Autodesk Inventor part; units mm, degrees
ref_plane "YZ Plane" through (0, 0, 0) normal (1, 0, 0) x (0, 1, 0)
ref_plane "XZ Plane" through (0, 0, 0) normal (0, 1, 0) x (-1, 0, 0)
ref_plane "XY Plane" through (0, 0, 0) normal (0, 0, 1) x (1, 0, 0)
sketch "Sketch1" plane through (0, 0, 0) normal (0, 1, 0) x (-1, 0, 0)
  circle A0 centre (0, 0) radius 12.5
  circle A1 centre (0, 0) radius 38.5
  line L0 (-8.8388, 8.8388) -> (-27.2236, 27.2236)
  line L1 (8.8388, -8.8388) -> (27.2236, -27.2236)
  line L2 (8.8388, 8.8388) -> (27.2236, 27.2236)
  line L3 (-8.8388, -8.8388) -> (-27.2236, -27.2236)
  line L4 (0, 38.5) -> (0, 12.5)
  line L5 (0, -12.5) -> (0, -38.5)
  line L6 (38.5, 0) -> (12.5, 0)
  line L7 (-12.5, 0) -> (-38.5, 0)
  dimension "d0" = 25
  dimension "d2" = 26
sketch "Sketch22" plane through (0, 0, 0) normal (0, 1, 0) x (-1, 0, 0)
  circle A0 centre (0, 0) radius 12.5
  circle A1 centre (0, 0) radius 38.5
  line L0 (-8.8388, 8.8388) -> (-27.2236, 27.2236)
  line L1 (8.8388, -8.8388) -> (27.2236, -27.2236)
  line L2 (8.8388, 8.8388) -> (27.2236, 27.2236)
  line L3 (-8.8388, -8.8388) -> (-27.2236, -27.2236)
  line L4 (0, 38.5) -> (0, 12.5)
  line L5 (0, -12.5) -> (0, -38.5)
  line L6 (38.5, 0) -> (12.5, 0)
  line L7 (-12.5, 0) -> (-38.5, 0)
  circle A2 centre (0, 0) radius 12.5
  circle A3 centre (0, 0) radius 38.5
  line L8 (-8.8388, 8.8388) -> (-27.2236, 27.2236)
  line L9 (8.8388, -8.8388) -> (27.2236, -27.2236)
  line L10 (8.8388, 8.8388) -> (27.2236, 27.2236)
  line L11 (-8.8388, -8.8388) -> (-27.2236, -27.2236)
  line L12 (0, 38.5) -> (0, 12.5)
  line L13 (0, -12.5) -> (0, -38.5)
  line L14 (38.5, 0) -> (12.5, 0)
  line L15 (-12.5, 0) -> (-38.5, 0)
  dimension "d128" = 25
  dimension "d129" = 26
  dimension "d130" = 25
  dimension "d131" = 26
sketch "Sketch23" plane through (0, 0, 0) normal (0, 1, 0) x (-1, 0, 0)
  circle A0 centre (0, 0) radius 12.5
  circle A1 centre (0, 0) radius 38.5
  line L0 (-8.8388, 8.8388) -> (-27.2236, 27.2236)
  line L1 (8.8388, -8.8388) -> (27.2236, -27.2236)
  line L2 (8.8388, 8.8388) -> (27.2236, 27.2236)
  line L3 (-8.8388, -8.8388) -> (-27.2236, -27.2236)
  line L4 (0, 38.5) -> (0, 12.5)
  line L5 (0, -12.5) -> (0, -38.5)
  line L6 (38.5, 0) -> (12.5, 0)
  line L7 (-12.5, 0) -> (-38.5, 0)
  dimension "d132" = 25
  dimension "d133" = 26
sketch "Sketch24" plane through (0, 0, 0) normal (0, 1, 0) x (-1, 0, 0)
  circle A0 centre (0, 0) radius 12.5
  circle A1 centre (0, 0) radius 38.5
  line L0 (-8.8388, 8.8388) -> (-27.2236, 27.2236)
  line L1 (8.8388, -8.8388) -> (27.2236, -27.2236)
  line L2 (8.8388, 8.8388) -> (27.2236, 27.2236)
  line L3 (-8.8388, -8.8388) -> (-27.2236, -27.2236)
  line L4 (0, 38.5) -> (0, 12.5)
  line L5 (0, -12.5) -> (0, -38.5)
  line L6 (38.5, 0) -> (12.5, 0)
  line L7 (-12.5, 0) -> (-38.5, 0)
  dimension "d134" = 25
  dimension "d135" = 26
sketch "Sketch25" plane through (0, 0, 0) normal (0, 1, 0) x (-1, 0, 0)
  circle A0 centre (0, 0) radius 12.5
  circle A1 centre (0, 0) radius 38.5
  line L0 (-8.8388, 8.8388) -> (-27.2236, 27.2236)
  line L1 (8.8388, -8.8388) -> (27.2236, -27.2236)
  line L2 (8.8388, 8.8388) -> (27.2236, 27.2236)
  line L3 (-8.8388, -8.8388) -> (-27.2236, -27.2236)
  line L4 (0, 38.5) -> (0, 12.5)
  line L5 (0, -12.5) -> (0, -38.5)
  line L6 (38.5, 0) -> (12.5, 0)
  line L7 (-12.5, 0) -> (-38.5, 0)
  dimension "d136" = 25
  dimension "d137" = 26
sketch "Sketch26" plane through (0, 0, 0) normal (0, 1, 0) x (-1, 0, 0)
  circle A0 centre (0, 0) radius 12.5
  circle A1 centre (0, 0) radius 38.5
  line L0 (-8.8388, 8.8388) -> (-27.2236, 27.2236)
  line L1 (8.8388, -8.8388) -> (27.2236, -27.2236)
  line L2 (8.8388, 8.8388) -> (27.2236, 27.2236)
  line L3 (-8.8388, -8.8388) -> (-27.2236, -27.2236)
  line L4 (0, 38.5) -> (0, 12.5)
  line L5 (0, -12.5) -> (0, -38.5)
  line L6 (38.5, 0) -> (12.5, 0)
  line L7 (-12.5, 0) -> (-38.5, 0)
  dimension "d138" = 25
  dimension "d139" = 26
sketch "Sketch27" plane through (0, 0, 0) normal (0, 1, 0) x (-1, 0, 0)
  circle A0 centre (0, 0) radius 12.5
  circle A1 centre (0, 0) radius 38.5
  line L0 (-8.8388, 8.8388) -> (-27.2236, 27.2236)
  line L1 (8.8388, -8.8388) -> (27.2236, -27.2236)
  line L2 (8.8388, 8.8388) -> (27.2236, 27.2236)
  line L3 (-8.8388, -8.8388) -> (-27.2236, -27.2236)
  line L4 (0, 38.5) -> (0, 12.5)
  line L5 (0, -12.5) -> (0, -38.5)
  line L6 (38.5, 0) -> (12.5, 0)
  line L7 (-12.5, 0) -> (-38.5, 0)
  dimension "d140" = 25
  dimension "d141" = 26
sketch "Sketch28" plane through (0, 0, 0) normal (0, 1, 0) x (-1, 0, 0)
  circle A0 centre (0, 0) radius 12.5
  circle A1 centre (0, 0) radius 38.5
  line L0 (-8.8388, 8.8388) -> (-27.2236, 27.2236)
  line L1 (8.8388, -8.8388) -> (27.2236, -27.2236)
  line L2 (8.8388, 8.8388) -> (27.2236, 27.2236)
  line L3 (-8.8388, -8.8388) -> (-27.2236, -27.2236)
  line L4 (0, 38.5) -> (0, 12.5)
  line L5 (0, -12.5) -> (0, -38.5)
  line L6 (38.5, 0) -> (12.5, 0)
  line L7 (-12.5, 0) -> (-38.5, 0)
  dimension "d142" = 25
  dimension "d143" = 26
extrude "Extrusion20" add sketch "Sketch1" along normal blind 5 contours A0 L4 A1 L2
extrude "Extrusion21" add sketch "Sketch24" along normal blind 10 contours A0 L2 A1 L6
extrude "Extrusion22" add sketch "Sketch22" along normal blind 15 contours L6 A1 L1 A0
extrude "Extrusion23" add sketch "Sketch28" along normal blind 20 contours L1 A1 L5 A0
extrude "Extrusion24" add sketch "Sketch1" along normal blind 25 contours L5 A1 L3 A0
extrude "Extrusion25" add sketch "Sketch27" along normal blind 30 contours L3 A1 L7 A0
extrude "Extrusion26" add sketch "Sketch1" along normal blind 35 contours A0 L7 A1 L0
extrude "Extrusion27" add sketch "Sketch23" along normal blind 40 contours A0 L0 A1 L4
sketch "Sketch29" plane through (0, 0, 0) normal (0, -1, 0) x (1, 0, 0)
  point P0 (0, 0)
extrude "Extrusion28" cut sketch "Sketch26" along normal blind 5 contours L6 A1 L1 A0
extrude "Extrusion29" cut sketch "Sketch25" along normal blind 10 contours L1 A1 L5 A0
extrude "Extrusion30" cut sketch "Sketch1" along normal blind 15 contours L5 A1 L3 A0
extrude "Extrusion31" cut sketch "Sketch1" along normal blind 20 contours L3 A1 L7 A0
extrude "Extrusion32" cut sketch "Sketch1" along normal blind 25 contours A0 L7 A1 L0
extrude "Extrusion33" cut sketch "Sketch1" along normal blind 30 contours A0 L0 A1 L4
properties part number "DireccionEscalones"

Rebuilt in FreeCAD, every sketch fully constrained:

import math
import FreeCAD as App
import Part
import Sketcher

V = App.Vector
Q = App.Units.Quantity

doc = App.newDocument("Part")
body = doc.addObject("PartDesign::Body", "Body")

sketch1 = body.newObject("Sketcher::SketchObject", "Sketch")
sketch1.AttachmentSupport = (doc.getObject("XZ_Plane"), [""])
sketch1.MapMode = "FlatFace"
sketch1.addGeometry([
    Part.ArcOfCircle(Part.Circle(V(0, 0, 0), V(0, 0, 1), 12), math.radians(90), math.radians(135)),
    Part.LineSegment(V(-9, 9, 0), V(-27, 27, 0)),
    Part.ArcOfCircle(Part.Circle(V(0, 0, 0), V(0, 0, 1), 38), math.radians(90), math.radians(135)),
    Part.LineSegment(V(0, 38, 0), V(0, 12, 0)),
], False)
sketch1.addConstraint([
    Sketcher.Constraint("Coincident", 0, 2, 1, 1),
    Sketcher.Constraint("Coincident", 1, 2, 2, 2),
    Sketcher.Constraint("Coincident", 2, 1, 3, 1),
    Sketcher.Constraint("Coincident", 3, 2, 0, 1),
    Sketcher.Constraint("Vertical", 3),
    Sketcher.Constraint("Coincident", 0, 3, -1, 1),
    Sketcher.Constraint("Coincident", 2, 3, -1, 1),
    Sketcher.Constraint("PointOnObject", 2, 1, -2),
    Sketcher.Constraint("Radius", 0, Q("12.5 mm")),
    Sketcher.Constraint("DistanceY", 3, 2, 3, 1, Q("26 mm")),
    Sketcher.Constraint("Angle", 1, Q("135 deg")),
    Sketcher.Constraint("DistanceX", 0, 2, -1, 1, Q("8.8388 mm")),
])
pad1 = body.newObject("PartDesign::Pad", "Pad")
pad1.Profile = sketch1
pad1.Length = 5
pad1.Reversed = True

sketch2 = body.newObject("Sketcher::SketchObject", "Sketch001")
sketch2.AttachmentSupport = (doc.getObject("XZ_Plane"), [""])
sketch2.MapMode = "FlatFace"
sketch2.addGeometry([
    Part.ArcOfCircle(Part.Circle(V(0, 0, 0), V(0, 0, 1), 12), math.radians(135), math.radians(180)),
    Part.LineSegment(V(-12, 0, 0), V(-38, 0, 0)),
    Part.ArcOfCircle(Part.Circle(V(0, 0, 0), V(0, 0, 1), 38), math.radians(135), math.radians(180)),
    Part.LineSegment(V(-27, 27, 0), V(-9, 9, 0)),
], False)
sketch2.addConstraint([
    Sketcher.Constraint("Coincident", 0, 2, 1, 1),
    Sketcher.Constraint("Coincident", 1, 2, 2, 2),
    Sketcher.Constraint("Coincident", 2, 1, 3, 1),
    Sketcher.Constraint("Coincident", 3, 2, 0, 1),
    Sketcher.Constraint("Horizontal", 1),
    Sketcher.Constraint("Coincident", 0, 3, -1, 1),
    Sketcher.Constraint("Coincident", 2, 3, -1, 1),
    Sketcher.Constraint("PointOnObject", 0, 2, -1),
    Sketcher.Constraint("Radius", 0, Q("12.5 mm")),
    Sketcher.Constraint("DistanceX", 1, 2, 1, 1, Q("26 mm")),
    Sketcher.Constraint("Angle", 3, Q("-45 deg")),
    Sketcher.Constraint("DistanceX", 2, 1, -1, 1, Q("27.2236 mm")),
])
pad2 = body.newObject("PartDesign::Pad", "Pad001")
pad2.Profile = sketch2
pad2.Length = 10
pad2.Reversed = True

sketch3 = body.newObject("Sketcher::SketchObject", "Sketch002")
sketch3.AttachmentSupport = (doc.getObject("XZ_Plane"), [""])
sketch3.MapMode = "FlatFace"
sketch3.addGeometry([
    Part.LineSegment(V(-38, 0, 0), V(-12, 0, 0)),
    Part.ArcOfCircle(Part.Circle(V(0, 0, 0), V(0, 0, 1), 12), math.radians(180), math.radians(225)),
    Part.LineSegment(V(-9, -9, 0), V(-27, -27, 0)),
    Part.ArcOfCircle(Part.Circle(V(0, 0, 0), V(0, 0, 1), 38), math.radians(180), math.radians(225)),
], False)
sketch3.addConstraint([
    Sketcher.Constraint("Coincident", 0, 2, 1, 1),
    Sketcher.Constraint("Coincident", 1, 2, 2, 1),
    Sketcher.Constraint("Coincident", 2, 2, 3, 2),
    Sketcher.Constraint("Coincident", 3, 1, 0, 1),
    Sketcher.Constraint("Horizontal", 0),
    Sketcher.Constraint("Coincident", 1, 3, -1, 1),
    Sketcher.Constraint("Coincident", 3, 3, -1, 1),
    Sketcher.Constraint("PointOnObject", 0, 2, -1),
    Sketcher.Constraint("Radius", 1, Q("12.5 mm")),
    Sketcher.Constraint("DistanceX", 0, 1, 0, 2, Q("26 mm")),
    Sketcher.Constraint("Angle", 2, Q("-135 deg")),
    Sketcher.Constraint("DistanceX", 1, 2, -1, 1, Q("8.8388 mm")),
])
pad3 = body.newObject("PartDesign::Pad", "Pad002")
pad3.Profile = sketch3
pad3.Length = 15
pad3.Reversed = True

sketch4 = body.newObject("Sketcher::SketchObject", "Sketch003")
sketch4.AttachmentSupport = (doc.getObject("XZ_Plane"), [""])
sketch4.MapMode = "FlatFace"
sketch4.addGeometry([
    Part.LineSegment(V(-27, -27, 0), V(-9, -9, 0)),
    Part.ArcOfCircle(Part.Circle(V(0, 0, 0), V(0, 0, 1), 12), math.radians(-135), math.radians(-90)),
    Part.LineSegment(V(0, -12, 0), V(0, -38, 0)),
    Part.ArcOfCircle(Part.Circle(V(0, 0, 0), V(0, 0, 1), 38), math.radians(-135), math.radians(-90)),
], False)
sketch4.addConstraint([
    Sketcher.Constraint("Coincident", 0, 2, 1, 1),
    Sketcher.Constraint("Coincident", 1, 2, 2, 1),
    Sketcher.Constraint("Coincident", 2, 2, 3, 2),
    Sketcher.Constraint("Coincident", 3, 1, 0, 1),
    Sketcher.Constraint("Vertical", 2),
    Sketcher.Constraint("Coincident", 1, 3, -1, 1),
    Sketcher.Constraint("Coincident", 3, 3, -1, 1),
    Sketcher.Constraint("PointOnObject", 1, 2, -2),
    Sketcher.Constraint("Radius", 1, Q("12.5 mm")),
    Sketcher.Constraint("DistanceY", 2, 2, 2, 1, Q("26 mm")),
    Sketcher.Constraint("Angle", 0, Q("45 deg")),
    Sketcher.Constraint("DistanceX", 0, 2, -1, 1, Q("8.8388 mm")),
])
pad4 = body.newObject("PartDesign::Pad", "Pad003")
pad4.Profile = sketch4
pad4.Length = 20
pad4.Reversed = True

sketch5 = body.newObject("Sketcher::SketchObject", "Sketch004")
sketch5.AttachmentSupport = (doc.getObject("XZ_Plane"), [""])
sketch5.MapMode = "FlatFace"
sketch5.addGeometry([
    Part.LineSegment(V(0, -38, 0), V(0, -12, 0)),
    Part.ArcOfCircle(Part.Circle(V(0, 0, 0), V(0, 0, 1), 12), math.radians(-90), math.radians(-45)),
    Part.LineSegment(V(9, -9, 0), V(27, -27, 0)),
    Part.ArcOfCircle(Part.Circle(V(0, 0, 0), V(0, 0, 1), 38), math.radians(-90), math.radians(-45)),
], False)
sketch5.addConstraint([
    Sketcher.Constraint("Coincident", 0, 2, 1, 1),
    Sketcher.Constraint("Coincident", 1, 2, 2, 1),
    Sketcher.Constraint("Coincident", 2, 2, 3, 2),
    Sketcher.Constraint("Coincident", 3, 1, 0, 1),
    Sketcher.Constraint("Vertical", 0),
    Sketcher.Constraint("Coincident", 1, 3, -1, 1),
    Sketcher.Constraint("Coincident", 3, 3, -1, 1),
    Sketcher.Constraint("PointOnObject", 0, 2, -2),
    Sketcher.Constraint("Radius", 1, Q("12.5 mm")),
    Sketcher.Constraint("DistanceY", 0, 1, 0, 2, Q("26 mm")),
    Sketcher.Constraint("Angle", 2, Q("-45 deg")),
    Sketcher.Constraint("DistanceX", -1, 1, 1, 2, Q("8.8388 mm")),
])
pad5 = body.newObject("PartDesign::Pad", "Pad004")
pad5.Profile = sketch5
pad5.Length = 25
pad5.Reversed = True

sketch6 = body.newObject("Sketcher::SketchObject", "Sketch005")
sketch6.AttachmentSupport = (doc.getObject("XZ_Plane"), [""])
sketch6.MapMode = "FlatFace"
sketch6.addGeometry([
    Part.LineSegment(V(27, -27, 0), V(9, -9, 0)),
    Part.ArcOfCircle(Part.Circle(V(0, 0, 0), V(0, 0, 1), 12), math.radians(-45), math.radians(0)),
    Part.LineSegment(V(12, 0, 0), V(38, 0, 0)),
    Part.ArcOfCircle(Part.Circle(V(0, 0, 0), V(0, 0, 1), 38), math.radians(-45), math.radians(0)),
], False)
sketch6.addConstraint([
    Sketcher.Constraint("Coincident", 0, 2, 1, 1),
    Sketcher.Constraint("Coincident", 1, 2, 2, 1),
    Sketcher.Constraint("Coincident", 2, 2, 3, 2),
    Sketcher.Constraint("Coincident", 3, 1, 0, 1),
    Sketcher.Constraint("Horizontal", 2),
    Sketcher.Constraint("Coincident", 1, 3, -1, 1),
    Sketcher.Constraint("Coincident", 3, 3, -1, 1),
    Sketcher.Constraint("PointOnObject", 1, 2, -1),
    Sketcher.Constraint("Radius", 1, Q("12.5 mm")),
    Sketcher.Constraint("DistanceX", 2, 1, 2, 2, Q("26 mm")),
    Sketcher.Constraint("Angle", 0, Q("135 deg")),
    Sketcher.Constraint("DistanceX", -1, 1, 0, 2, Q("8.8388 mm")),
])
pad6 = body.newObject("PartDesign::Pad", "Pad005")
pad6.Profile = sketch6
pad6.Length = 30
pad6.Reversed = True

sketch7 = body.newObject("Sketcher::SketchObject", "Sketch006")
sketch7.AttachmentSupport = (doc.getObject("XZ_Plane"), [""])
sketch7.MapMode = "FlatFace"
sketch7.addGeometry([
    Part.ArcOfCircle(Part.Circle(V(0, 0, 0), V(0, 0, 1), 12), math.radians(0), math.radians(45)),
    Part.LineSegment(V(9, 9, 0), V(27, 27, 0)),
    Part.ArcOfCircle(Part.Circle(V(0, 0, 0), V(0, 0, 1), 38), math.radians(0), math.radians(45)),
    Part.LineSegment(V(38, 0, 0), V(12, 0, 0)),
], False)
sketch7.addConstraint([
    Sketcher.Constraint("Coincident", 0, 2, 1, 1),
    Sketcher.Constraint("Coincident", 1, 2, 2, 2),
    Sketcher.Constraint("Coincident", 2, 1, 3, 1),
    Sketcher.Constraint("Coincident", 3, 2, 0, 1),
    Sketcher.Constraint("Horizontal", 3),
    Sketcher.Constraint("Coincident", 0, 3, -1, 1),
    Sketcher.Constraint("Coincident", 2, 3, -1, 1),
    Sketcher.Constraint("PointOnObject", 2, 1, -1),
    Sketcher.Constraint("Radius", 0, Q("12.5 mm")),
    Sketcher.Constraint("DistanceX", 3, 2, 3, 1, Q("26 mm")),
    Sketcher.Constraint("Angle", 1, Q("45 deg")),
    Sketcher.Constraint("DistanceX", -1, 1, 0, 2, Q("8.8388 mm")),
])
pad7 = body.newObject("PartDesign::Pad", "Pad006")
pad7.Profile = sketch7
pad7.Length = 35
pad7.Reversed = True

sketch8 = body.newObject("Sketcher::SketchObject", "Sketch007")
sketch8.AttachmentSupport = (doc.getObject("XZ_Plane"), [""])
sketch8.MapMode = "FlatFace"
sketch8.addGeometry([
    Part.ArcOfCircle(Part.Circle(V(0, 0, 0), V(0, 0, 1), 12), math.radians(45), math.radians(90)),
    Part.LineSegment(V(0, 12, 0), V(0, 38, 0)),
    Part.ArcOfCircle(Part.Circle(V(0, 0, 0), V(0, 0, 1), 38), math.radians(45), math.radians(90)),
    Part.LineSegment(V(27, 27, 0), V(9, 9, 0)),
], False)
sketch8.addConstraint([
    Sketcher.Constraint("Coincident", 0, 2, 1, 1),
    Sketcher.Constraint("Coincident", 1, 2, 2, 2),
    Sketcher.Constraint("Coincident", 2, 1, 3, 1),
    Sketcher.Constraint("Coincident", 3, 2, 0, 1),
    Sketcher.Constraint("Vertical", 1),
    Sketcher.Constraint("Coincident", 0, 3, -1, 1),
    Sketcher.Constraint("Coincident", 2, 3, -1, 1),
    Sketcher.Constraint("PointOnObject", 0, 2, -2),
    Sketcher.Constraint("Radius", 0, Q("12.5 mm")),
    Sketcher.Constraint("DistanceY", 1, 1, 1, 2, Q("26 mm")),
    Sketcher.Constraint("Angle", 3, Q("-135 deg")),
    Sketcher.Constraint("DistanceX", -1, 1, 2, 1, Q("27.2236 mm")),
])
pad8 = body.newObject("PartDesign::Pad", "Pad007")
pad8.Profile = sketch8
pad8.Length = 40
pad8.Reversed = True

sketch9 = body.newObject("Sketcher::SketchObject", "Sketch008")
sketch9.AttachmentSupport = (doc.getObject("XZ_Plane"), [""])
sketch9.MapMode = "FlatFace"
sketch9.addGeometry([
    Part.LineSegment(V(-38, 0, 0), V(-12, 0, 0)),
    Part.ArcOfCircle(Part.Circle(V(0, 0, 0), V(0, 0, 1), 12), math.radians(180), math.radians(225)),
    Part.LineSegment(V(-9, -9, 0), V(-27, -27, 0)),
    Part.ArcOfCircle(Part.Circle(V(0, 0, 0), V(0, 0, 1), 38), math.radians(180), math.radians(225)),
], False)
sketch9.addConstraint([
    Sketcher.Constraint("Coincident", 0, 2, 1, 1),
    Sketcher.Constraint("Coincident", 1, 2, 2, 1),
    Sketcher.Constraint("Coincident", 2, 2, 3, 2),
    Sketcher.Constraint("Coincident", 3, 1, 0, 1),
    Sketcher.Constraint("Horizontal", 0),
    Sketcher.Constraint("Coincident", 1, 3, -1, 1),
    Sketcher.Constraint("Coincident", 3, 3, -1, 1),
    Sketcher.Constraint("PointOnObject", 0, 2, -1),
    Sketcher.Constraint("Radius", 1, Q("12.5 mm")),
    Sketcher.Constraint("DistanceX", 0, 1, 0, 2, Q("26 mm")),
    Sketcher.Constraint("Angle", 2, Q("-135 deg")),
    Sketcher.Constraint("DistanceX", 1, 2, -1, 1, Q("8.8388 mm")),
])
pocket1 = body.newObject("PartDesign::Pocket", "Pocket")
pocket1.Profile = sketch9
pocket1.Length = 5

sketch10 = body.newObject("Sketcher::SketchObject", "Sketch009")
sketch10.AttachmentSupport = (doc.getObject("XZ_Plane"), [""])
sketch10.MapMode = "FlatFace"
sketch10.addGeometry([
    Part.LineSegment(V(-27, -27, 0), V(-9, -9, 0)),
    Part.ArcOfCircle(Part.Circle(V(0, 0, 0), V(0, 0, 1), 12), math.radians(-135), math.radians(-90)),
    Part.LineSegment(V(0, -12, 0), V(0, -38, 0)),
    Part.ArcOfCircle(Part.Circle(V(0, 0, 0), V(0, 0, 1), 38), math.radians(-135), math.radians(-90)),
], False)
sketch10.addConstraint([
    Sketcher.Constraint("Coincident", 0, 2, 1, 1),
    Sketcher.Constraint("Coincident", 1, 2, 2, 1),
    Sketcher.Constraint("Coincident", 2, 2, 3, 2),
    Sketcher.Constraint("Coincident", 3, 1, 0, 1),
    Sketcher.Constraint("Vertical", 2),
    Sketcher.Constraint("Coincident", 1, 3, -1, 1),
    Sketcher.Constraint("Coincident", 3, 3, -1, 1),
    Sketcher.Constraint("PointOnObject", 1, 2, -2),
    Sketcher.Constraint("Radius", 1, Q("12.5 mm")),
    Sketcher.Constraint("DistanceY", 2, 2, 2, 1, Q("26 mm")),
    Sketcher.Constraint("Angle", 0, Q("45 deg")),
    Sketcher.Constraint("DistanceX", 0, 2, -1, 1, Q("8.8388 mm")),
])
pocket2 = body.newObject("PartDesign::Pocket", "Pocket001")
pocket2.Profile = sketch10
pocket2.Length = 10

sketch11 = body.newObject("Sketcher::SketchObject", "Sketch010")
sketch11.AttachmentSupport = (doc.getObject("XZ_Plane"), [""])
sketch11.MapMode = "FlatFace"
sketch11.addGeometry([
    Part.LineSegment(V(0, -38, 0), V(0, -12, 0)),
    Part.ArcOfCircle(Part.Circle(V(0, 0, 0), V(0, 0, 1), 12), math.radians(-90), math.radians(-45)),
    Part.LineSegment(V(9, -9, 0), V(27, -27, 0)),
    Part.ArcOfCircle(Part.Circle(V(0, 0, 0), V(0, 0, 1), 38), math.radians(-90), math.radians(-45)),
], False)
sketch11.addConstraint([
    Sketcher.Constraint("Coincident", 0, 2, 1, 1),
    Sketcher.Constraint("Coincident", 1, 2, 2, 1),
    Sketcher.Constraint("Coincident", 2, 2, 3, 2),
    Sketcher.Constraint("Coincident", 3, 1, 0, 1),
    Sketcher.Constraint("Vertical", 0),
    Sketcher.Constraint("Coincident", 1, 3, -1, 1),
    Sketcher.Constraint("Coincident", 3, 3, -1, 1),
    Sketcher.Constraint("PointOnObject", 0, 2, -2),
    Sketcher.Constraint("Radius", 1, Q("12.5 mm")),
    Sketcher.Constraint("DistanceY", 0, 1, 0, 2, Q("26 mm")),
    Sketcher.Constraint("Angle", 2, Q("-45 deg")),
    Sketcher.Constraint("DistanceX", -1, 1, 1, 2, Q("8.8388 mm")),
])
pocket3 = body.newObject("PartDesign::Pocket", "Pocket002")
pocket3.Profile = sketch11
pocket3.Length = 15

sketch12 = body.newObject("Sketcher::SketchObject", "Sketch011")
sketch12.AttachmentSupport = (doc.getObject("XZ_Plane"), [""])
sketch12.MapMode = "FlatFace"
sketch12.addGeometry([
    Part.LineSegment(V(27, -27, 0), V(9, -9, 0)),
    Part.ArcOfCircle(Part.Circle(V(0, 0, 0), V(0, 0, 1), 12), math.radians(-45), math.radians(0)),
    Part.LineSegment(V(12, 0, 0), V(38, 0, 0)),
    Part.ArcOfCircle(Part.Circle(V(0, 0, 0), V(0, 0, 1), 38), math.radians(-45), math.radians(0)),
], False)
sketch12.addConstraint([
    Sketcher.Constraint("Coincident", 0, 2, 1, 1),
    Sketcher.Constraint("Coincident", 1, 2, 2, 1),
    Sketcher.Constraint("Coincident", 2, 2, 3, 2),
    Sketcher.Constraint("Coincident", 3, 1, 0, 1),
    Sketcher.Constraint("Horizontal", 2),
    Sketcher.Constraint("Coincident", 1, 3, -1, 1),
    Sketcher.Constraint("Coincident", 3, 3, -1, 1),
    Sketcher.Constraint("PointOnObject", 1, 2, -1),
    Sketcher.Constraint("Radius", 1, Q("12.5 mm")),
    Sketcher.Constraint("DistanceX", 2, 1, 2, 2, Q("26 mm")),
    Sketcher.Constraint("Angle", 0, Q("135 deg")),
    Sketcher.Constraint("DistanceX", -1, 1, 0, 2, Q("8.8388 mm")),
])
pocket4 = body.newObject("PartDesign::Pocket", "Pocket003")
pocket4.Profile = sketch12
pocket4.Length = 20

sketch13 = body.newObject("Sketcher::SketchObject", "Sketch012")
sketch13.AttachmentSupport = (doc.getObject("XZ_Plane"), [""])
sketch13.MapMode = "FlatFace"
sketch13.addGeometry([
    Part.ArcOfCircle(Part.Circle(V(0, 0, 0), V(0, 0, 1), 12), math.radians(0), math.radians(45)),
    Part.LineSegment(V(9, 9, 0), V(27, 27, 0)),
    Part.ArcOfCircle(Part.Circle(V(0, 0, 0), V(0, 0, 1), 38), math.radians(0), math.radians(45)),
    Part.LineSegment(V(38, 0, 0), V(12, 0, 0)),
], False)
sketch13.addConstraint([
    Sketcher.Constraint("Coincident", 0, 2, 1, 1),
    Sketcher.Constraint("Coincident", 1, 2, 2, 2),
    Sketcher.Constraint("Coincident", 2, 1, 3, 1),
    Sketcher.Constraint("Coincident", 3, 2, 0, 1),
    Sketcher.Constraint("Horizontal", 3),
    Sketcher.Constraint("Coincident", 0, 3, -1, 1),
    Sketcher.Constraint("Coincident", 2, 3, -1, 1),
    Sketcher.Constraint("PointOnObject", 2, 1, -1),
    Sketcher.Constraint("Radius", 0, Q("12.5 mm")),
    Sketcher.Constraint("DistanceX", 3, 2, 3, 1, Q("26 mm")),
    Sketcher.Constraint("Angle", 1, Q("45 deg")),
    Sketcher.Constraint("DistanceX", -1, 1, 0, 2, Q("8.8388 mm")),
])
pocket5 = body.newObject("PartDesign::Pocket", "Pocket004")
pocket5.Profile = sketch13
pocket5.Length = 25

sketch14 = body.newObject("Sketcher::SketchObject", "Sketch013")
sketch14.AttachmentSupport = (doc.getObject("XZ_Plane"), [""])
sketch14.MapMode = "FlatFace"
sketch14.addGeometry([
    Part.ArcOfCircle(Part.Circle(V(0, 0, 0), V(0, 0, 1), 12), math.radians(45), math.radians(90)),
    Part.LineSegment(V(0, 12, 0), V(0, 38, 0)),
    Part.ArcOfCircle(Part.Circle(V(0, 0, 0), V(0, 0, 1), 38), math.radians(45), math.radians(90)),
    Part.LineSegment(V(27, 27, 0), V(9, 9, 0)),
], False)
sketch14.addConstraint([
    Sketcher.Constraint("Coincident", 0, 2, 1, 1),
    Sketcher.Constraint("Coincident", 1, 2, 2, 2),
    Sketcher.Constraint("Coincident", 2, 1, 3, 1),
    Sketcher.Constraint("Coincident", 3, 2, 0, 1),
    Sketcher.Constraint("Vertical", 1),
    Sketcher.Constraint("Coincident", 0, 3, -1, 1),
    Sketcher.Constraint("Coincident", 2, 3, -1, 1),
    Sketcher.Constraint("PointOnObject", 0, 2, -2),
    Sketcher.Constraint("Radius", 0, Q("12.5 mm")),
    Sketcher.Constraint("DistanceY", 1, 1, 1, 2, Q("26 mm")),
    Sketcher.Constraint("Angle", 3, Q("-135 deg")),
    Sketcher.Constraint("DistanceX", -1, 1, 2, 1, Q("27.2236 mm")),
])
pocket6 = body.newObject("PartDesign::Pocket", "Pocket005")
pocket6.Profile = sketch14
pocket6.Length = 30

doc.recompute()
